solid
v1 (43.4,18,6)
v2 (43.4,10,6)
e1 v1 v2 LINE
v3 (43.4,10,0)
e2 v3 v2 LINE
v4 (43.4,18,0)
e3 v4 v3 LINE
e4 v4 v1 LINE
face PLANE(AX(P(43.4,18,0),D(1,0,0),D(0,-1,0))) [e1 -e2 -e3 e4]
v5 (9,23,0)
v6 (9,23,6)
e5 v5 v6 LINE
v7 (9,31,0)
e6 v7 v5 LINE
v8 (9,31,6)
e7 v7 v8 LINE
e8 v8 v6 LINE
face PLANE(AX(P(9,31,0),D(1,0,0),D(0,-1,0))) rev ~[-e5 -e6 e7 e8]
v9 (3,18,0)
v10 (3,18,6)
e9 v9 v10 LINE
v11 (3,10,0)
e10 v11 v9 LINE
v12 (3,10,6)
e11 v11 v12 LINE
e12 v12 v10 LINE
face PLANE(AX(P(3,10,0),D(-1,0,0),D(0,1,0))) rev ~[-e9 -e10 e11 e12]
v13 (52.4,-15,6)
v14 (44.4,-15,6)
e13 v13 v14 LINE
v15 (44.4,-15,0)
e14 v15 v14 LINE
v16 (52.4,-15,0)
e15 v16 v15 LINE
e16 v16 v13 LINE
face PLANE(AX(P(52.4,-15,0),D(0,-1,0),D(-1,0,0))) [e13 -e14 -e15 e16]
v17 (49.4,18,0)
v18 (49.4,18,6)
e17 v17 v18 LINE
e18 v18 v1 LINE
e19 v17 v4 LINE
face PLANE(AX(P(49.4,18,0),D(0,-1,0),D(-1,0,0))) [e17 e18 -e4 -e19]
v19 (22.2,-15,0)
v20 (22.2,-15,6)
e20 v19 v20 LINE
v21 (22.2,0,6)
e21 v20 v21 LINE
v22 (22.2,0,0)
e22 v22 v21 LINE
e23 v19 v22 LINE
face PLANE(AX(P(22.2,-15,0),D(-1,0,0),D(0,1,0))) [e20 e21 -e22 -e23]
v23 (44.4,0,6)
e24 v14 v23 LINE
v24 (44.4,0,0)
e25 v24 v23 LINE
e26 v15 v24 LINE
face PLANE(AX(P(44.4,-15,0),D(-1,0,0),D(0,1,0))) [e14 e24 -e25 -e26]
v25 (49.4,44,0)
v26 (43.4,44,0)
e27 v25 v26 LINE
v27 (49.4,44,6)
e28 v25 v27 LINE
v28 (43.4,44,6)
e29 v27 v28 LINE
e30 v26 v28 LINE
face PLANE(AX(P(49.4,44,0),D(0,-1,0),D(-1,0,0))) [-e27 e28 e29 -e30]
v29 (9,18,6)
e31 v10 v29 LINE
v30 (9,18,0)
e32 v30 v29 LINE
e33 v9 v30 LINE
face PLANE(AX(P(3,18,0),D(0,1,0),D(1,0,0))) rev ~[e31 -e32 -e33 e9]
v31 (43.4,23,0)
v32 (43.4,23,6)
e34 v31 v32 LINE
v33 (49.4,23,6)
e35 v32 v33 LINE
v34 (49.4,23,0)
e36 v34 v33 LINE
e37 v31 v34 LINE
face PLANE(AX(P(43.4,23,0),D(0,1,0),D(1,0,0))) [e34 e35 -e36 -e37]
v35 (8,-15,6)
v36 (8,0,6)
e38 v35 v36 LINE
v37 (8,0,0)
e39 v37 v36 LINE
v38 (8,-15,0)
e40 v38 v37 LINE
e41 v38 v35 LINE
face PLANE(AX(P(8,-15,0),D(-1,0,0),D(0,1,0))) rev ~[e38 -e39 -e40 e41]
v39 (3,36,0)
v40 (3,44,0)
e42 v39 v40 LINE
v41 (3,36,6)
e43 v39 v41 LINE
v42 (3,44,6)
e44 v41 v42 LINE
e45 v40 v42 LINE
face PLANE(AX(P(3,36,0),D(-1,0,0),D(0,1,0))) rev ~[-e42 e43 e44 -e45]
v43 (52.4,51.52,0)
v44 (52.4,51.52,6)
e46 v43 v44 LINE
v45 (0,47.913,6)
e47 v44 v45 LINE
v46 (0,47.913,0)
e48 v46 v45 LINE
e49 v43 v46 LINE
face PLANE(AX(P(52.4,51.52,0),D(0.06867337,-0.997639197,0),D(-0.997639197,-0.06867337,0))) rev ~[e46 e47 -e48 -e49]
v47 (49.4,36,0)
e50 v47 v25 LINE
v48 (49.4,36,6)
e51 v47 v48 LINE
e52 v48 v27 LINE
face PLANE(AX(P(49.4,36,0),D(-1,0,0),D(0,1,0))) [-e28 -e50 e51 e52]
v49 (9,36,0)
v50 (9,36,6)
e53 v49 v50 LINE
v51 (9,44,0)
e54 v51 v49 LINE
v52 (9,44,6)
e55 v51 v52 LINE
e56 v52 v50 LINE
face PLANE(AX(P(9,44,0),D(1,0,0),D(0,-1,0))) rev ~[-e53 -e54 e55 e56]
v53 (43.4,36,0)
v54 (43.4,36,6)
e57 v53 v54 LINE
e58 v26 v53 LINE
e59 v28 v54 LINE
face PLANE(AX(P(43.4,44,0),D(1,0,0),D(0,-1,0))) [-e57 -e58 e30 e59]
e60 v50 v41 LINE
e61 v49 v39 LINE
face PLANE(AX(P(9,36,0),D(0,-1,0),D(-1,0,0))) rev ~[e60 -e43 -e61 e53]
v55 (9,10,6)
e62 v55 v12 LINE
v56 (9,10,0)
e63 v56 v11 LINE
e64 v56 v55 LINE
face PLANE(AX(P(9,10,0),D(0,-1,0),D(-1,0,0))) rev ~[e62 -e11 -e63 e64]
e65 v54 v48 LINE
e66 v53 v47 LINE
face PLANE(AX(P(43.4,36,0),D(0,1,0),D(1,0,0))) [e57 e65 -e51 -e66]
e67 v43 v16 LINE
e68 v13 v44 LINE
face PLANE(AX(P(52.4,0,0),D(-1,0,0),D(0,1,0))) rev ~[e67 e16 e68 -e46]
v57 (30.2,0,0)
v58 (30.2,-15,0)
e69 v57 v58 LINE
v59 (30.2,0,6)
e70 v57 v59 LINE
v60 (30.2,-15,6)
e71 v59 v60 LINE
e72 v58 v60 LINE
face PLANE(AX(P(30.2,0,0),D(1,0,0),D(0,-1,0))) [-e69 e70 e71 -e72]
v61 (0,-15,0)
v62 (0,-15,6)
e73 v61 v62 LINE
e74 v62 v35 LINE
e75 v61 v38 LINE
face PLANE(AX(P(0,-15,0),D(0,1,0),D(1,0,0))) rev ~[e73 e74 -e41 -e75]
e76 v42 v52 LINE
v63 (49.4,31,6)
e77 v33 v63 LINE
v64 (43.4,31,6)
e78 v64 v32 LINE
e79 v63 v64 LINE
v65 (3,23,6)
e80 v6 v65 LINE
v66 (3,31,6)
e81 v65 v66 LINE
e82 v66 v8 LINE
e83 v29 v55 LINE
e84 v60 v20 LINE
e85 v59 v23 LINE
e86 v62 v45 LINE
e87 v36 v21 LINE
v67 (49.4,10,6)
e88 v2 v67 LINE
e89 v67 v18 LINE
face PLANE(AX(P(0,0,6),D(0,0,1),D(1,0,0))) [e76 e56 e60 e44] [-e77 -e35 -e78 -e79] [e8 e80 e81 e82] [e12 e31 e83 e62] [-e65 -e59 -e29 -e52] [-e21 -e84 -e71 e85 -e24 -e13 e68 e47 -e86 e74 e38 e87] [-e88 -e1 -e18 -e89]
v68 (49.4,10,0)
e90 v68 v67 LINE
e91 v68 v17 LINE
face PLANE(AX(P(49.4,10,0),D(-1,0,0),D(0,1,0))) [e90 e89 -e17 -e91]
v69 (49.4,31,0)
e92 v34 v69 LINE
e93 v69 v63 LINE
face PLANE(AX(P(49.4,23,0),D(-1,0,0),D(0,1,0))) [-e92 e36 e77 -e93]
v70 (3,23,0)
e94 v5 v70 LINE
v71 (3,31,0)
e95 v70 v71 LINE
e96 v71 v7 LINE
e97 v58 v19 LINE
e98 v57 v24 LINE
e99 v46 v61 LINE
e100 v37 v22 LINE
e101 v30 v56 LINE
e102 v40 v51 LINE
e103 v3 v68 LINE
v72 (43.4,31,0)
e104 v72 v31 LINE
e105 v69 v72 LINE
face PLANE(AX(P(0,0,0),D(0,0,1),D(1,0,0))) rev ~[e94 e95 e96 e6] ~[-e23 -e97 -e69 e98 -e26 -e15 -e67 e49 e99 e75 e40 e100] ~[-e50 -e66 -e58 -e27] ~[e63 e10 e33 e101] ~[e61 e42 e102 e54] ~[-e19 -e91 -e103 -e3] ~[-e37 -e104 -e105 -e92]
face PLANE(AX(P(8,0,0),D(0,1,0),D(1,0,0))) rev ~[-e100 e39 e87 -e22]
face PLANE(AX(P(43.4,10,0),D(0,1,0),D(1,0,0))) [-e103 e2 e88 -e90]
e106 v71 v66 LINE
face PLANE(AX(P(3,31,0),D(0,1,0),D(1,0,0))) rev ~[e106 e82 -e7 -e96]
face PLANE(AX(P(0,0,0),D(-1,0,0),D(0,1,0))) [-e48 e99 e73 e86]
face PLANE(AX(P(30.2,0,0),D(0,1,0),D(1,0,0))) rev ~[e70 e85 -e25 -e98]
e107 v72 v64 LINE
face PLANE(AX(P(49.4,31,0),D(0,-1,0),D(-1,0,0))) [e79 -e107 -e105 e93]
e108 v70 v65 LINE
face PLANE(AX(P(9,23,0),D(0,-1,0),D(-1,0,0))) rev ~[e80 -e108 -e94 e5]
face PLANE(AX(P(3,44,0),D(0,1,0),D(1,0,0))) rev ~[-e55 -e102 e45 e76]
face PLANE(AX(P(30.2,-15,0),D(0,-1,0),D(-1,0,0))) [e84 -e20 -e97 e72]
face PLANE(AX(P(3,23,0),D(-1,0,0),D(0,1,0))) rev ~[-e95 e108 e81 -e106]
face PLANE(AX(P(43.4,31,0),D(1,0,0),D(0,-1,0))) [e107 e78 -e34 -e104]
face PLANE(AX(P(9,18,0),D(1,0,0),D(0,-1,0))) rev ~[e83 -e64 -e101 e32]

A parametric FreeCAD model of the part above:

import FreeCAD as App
import Part
import Sketcher
from FreeCAD import Vector
Q = App.Units.Quantity

doc = App.newDocument("Part")
body = doc.addObject("PartDesign::Body", "Body")

# Sketch on XY plane
sketch1 = body.newObject("Sketcher::SketchObject", "Sketch")
sketch1.AttachmentSupport = (doc.getObject("XY_Plane"), [""])
sketch1.MapMode = "FlatFace"
sketch1.addGeometry([
    Part.LineSegment(Vector(0, 48, 0), Vector(0, 0, 0)),  # 0
    Part.LineSegment(Vector(0, 0, 0), Vector(52, 0, 0)),  # 1
    Part.LineSegment(Vector(52, 0, 0), Vector(52, 52, 0)),  # 2
    Part.LineSegment(Vector(52, 52, 0), Vector(0, 48, 0)),  # 3
    Part.LineSegment(Vector(3, 10, 0), Vector(3, 18, 0)),  # 4
    Part.LineSegment(Vector(3, 18, 0), Vector(9, 18, 0)),  # 5
    Part.LineSegment(Vector(9, 18, 0), Vector(9, 10, 0)),  # 6
    Part.LineSegment(Vector(9, 10, 0), Vector(3, 10, 0)),  # 7
    Part.LineSegment(Vector(43, 18, 0), Vector(49, 18, 0)),  # 8
    Part.LineSegment(Vector(49, 18, 0), Vector(49, 10, 0)),  # 9
    Part.LineSegment(Vector(49, 10, 0), Vector(43, 10, 0)),  # 10
    Part.LineSegment(Vector(43, 10, 0), Vector(43, 18, 0)),  # 11
    Part.LineSegment(Vector(3, 23, 0), Vector(3, 31, 0)),  # 12
    Part.LineSegment(Vector(3, 31, 0), Vector(9, 31, 0)),  # 13
    Part.LineSegment(Vector(9, 31, 0), Vector(9, 23, 0)),  # 14
    Part.LineSegment(Vector(9, 23, 0), Vector(3, 23, 0)),  # 15
    Part.LineSegment(Vector(3, 36, 0), Vector(3, 44, 0)),  # 16
    Part.LineSegment(Vector(3, 44, 0), Vector(9, 44, 0)),  # 17
    Part.LineSegment(Vector(9, 44, 0), Vector(9, 36, 0)),  # 18
    Part.LineSegment(Vector(9, 36, 0), Vector(3, 36, 0)),  # 19
    Part.LineSegment(Vector(43, 31, 0), Vector(49, 31, 0)),  # 20
    Part.LineSegment(Vector(49, 31, 0), Vector(49, 23, 0)),  # 21
    Part.LineSegment(Vector(49, 23, 0), Vector(43, 23, 0)),  # 22
    Part.LineSegment(Vector(43, 23, 0), Vector(43, 31, 0)),  # 23
    Part.LineSegment(Vector(43, 44, 0), Vector(49, 44, 0)),  # 24
    Part.LineSegment(Vector(49, 44, 0), Vector(49, 36, 0)),  # 25
    Part.LineSegment(Vector(49, 36, 0), Vector(43, 36, 0)),  # 26
    Part.LineSegment(Vector(43, 36, 0), Vector(43, 44, 0)),  # 27
], False)
sketch1.addConstraint([
    Sketcher.Constraint("Coincident", 0, 2, 1, 1),
    Sketcher.Constraint("Coincident", 1, 2, 2, 1),
    Sketcher.Constraint("Coincident", 2, 2, 3, 1),
    Sketcher.Constraint("Coincident", 3, 2, 0, 1),
    Sketcher.Constraint("Coincident", 4, 2, 5, 1),
    Sketcher.Constraint("Coincident", 5, 2, 6, 1),
    Sketcher.Constraint("Coincident", 6, 2, 7, 1),
    Sketcher.Constraint("Coincident", 7, 2, 4, 1),
    Sketcher.Constraint("Coincident", 8, 2, 9, 1),
    Sketcher.Constraint("Coincident", 9, 2, 10, 1),
    Sketcher.Constraint("Coincident", 10, 2, 11, 1),
    Sketcher.Constraint("Coincident", 11, 2, 8, 1),
    Sketcher.Constraint("Coincident", 12, 2, 13, 1),
    Sketcher.Constraint("Coincident", 13, 2, 14, 1),
    Sketcher.Constraint("Coincident", 14, 2, 15, 1),
    Sketcher.Constraint("Coincident", 15, 2, 12, 1),
    Sketcher.Constraint("Coincident", 16, 2, 17, 1),
    Sketcher.Constraint("Coincident", 17, 2, 18, 1),
    Sketcher.Constraint("Coincident", 18, 2, 19, 1),
    Sketcher.Constraint("Coincident", 19, 2, 16, 1),
    Sketcher.Constraint("Coincident", 20, 2, 21, 1),
    Sketcher.Constraint("Coincident", 21, 2, 22, 1),
    Sketcher.Constraint("Coincident", 22, 2, 23, 1),
    Sketcher.Constraint("Coincident", 23, 2, 20, 1),
    Sketcher.Constraint("Coincident", 24, 2, 25, 1),
    Sketcher.Constraint("Coincident", 25, 2, 26, 1),
    Sketcher.Constraint("Coincident", 26, 2, 27, 1),
    Sketcher.Constraint("Coincident", 27, 2, 24, 1),
    Sketcher.Constraint("Vertical", 0),
    Sketcher.Constraint("Horizontal", 1),
    Sketcher.Constraint("Vertical", 2),
    Sketcher.Constraint("Vertical", 4),
    Sketcher.Constraint("Horizontal", 5),
    Sketcher.Constraint("Vertical", 6),
    Sketcher.Constraint("Horizontal", 7),
    Sketcher.Constraint("Horizontal", 8),
    Sketcher.Constraint("Vertical", 9),
    Sketcher.Constraint("Horizontal", 10),
    Sketcher.Constraint("Vertical", 11),
    Sketcher.Constraint("Vertical", 12),
    Sketcher.Constraint("Horizontal", 13),
    Sketcher.Constraint("Vertical", 14),
    Sketcher.Constraint("Horizontal", 15),
    Sketcher.Constraint("Vertical", 16),
    Sketcher.Constraint("Horizontal", 17),
    Sketcher.Constraint("Vertical", 18),
    Sketcher.Constraint("Horizontal", 19),
    Sketcher.Constraint("Horizontal", 20),
    Sketcher.Constraint("Vertical", 21),
    Sketcher.Constraint("Horizontal", 22),
    Sketcher.Constraint("Vertical", 23),
    Sketcher.Constraint("Horizontal", 24),
    Sketcher.Constraint("Vertical", 25),
    Sketcher.Constraint("Horizontal", 26),
    Sketcher.Constraint("Vertical", 27),
    Sketcher.Constraint("Coincident", 0, 2, -1, 1),
    Sketcher.Constraint("Horizontal", 5, 2, 8, 2),
    Sketcher.Constraint("Horizontal", 7, 2, 9, 2),
    Sketcher.Constraint("Horizontal", 13, 2, 20, 2),
    Sketcher.Constraint("Horizontal", 15, 2, 21, 2),
    Sketcher.Constraint("Horizontal", 17, 2, 24, 2),
    Sketcher.Constraint("Horizontal", 19, 2, 25, 2),
    Sketcher.Constraint("Vertical", 7, 2, 12, 2),
    Sketcher.Constraint("Vertical", 6, 2, 13, 2),
    Sketcher.Constraint("Vertical", 15, 2, 16, 2),
    Sketcher.Constraint("Vertical", 14, 2, 17, 2),
    Sketcher.Constraint("Vertical", 9, 2, 20, 2),
    Sketcher.Constraint("Vertical", 11, 2, 22, 2),
    Sketcher.Constraint("Vertical", 21, 2, 24, 2),
    Sketcher.Constraint("Vertical", 23, 2, 26, 2),
    Sketcher.Constraint("Equal", 7, 8),
    Sketcher.Constraint("Equal", 11, 12),
    Sketcher.Constraint("Equal", 14, 16),
    Sketcher.Constraint("DistanceX", 5, 1, 5, 2, Q("6 mm")),
    Sketcher.Constraint("DistanceY", 4, 1, 4, 2, Q("8 mm")),
    Sketcher.Constraint("DistanceX", 1, 1, 1, 2, Q("52.4 mm")),
    Sketcher.Constraint("DistanceX", -1, 1, 4, 2, Q("3 mm")),
    Sketcher.Constraint("DistanceY", -1, 1, 6, 2, Q("10 mm")),
    Sketcher.Constraint("DistanceX", 8, 2, 1, 2, Q("3 mm")),
    Sketcher.Constraint("DistanceY", 5, 2, 14, 2, Q("5 mm")),
    Sketcher.Constraint("DistanceY", 13, 2, 18, 2, Q("5 mm")),
    Sketcher.Constraint("DistanceY", 2, 1, 2, 2, Q("51.52 mm")),
    Sketcher.Constraint("DistanceY", 0, 2, 0, 1, Q("47.913 mm")),
])
pad1 = body.newObject("PartDesign::Pad", "Pad")
pad1.Profile = sketch1
pad1.Length = 6

# Sketch on XY plane
sketch2 = body.newObject("Sketcher::SketchObject", "Sketch001")
sketch2.AttachmentSupport = (doc.getObject("XY_Plane"), [""])
sketch2.MapMode = "FlatFace"
sketch2.addGeometry([
    Part.LineSegment(Vector(8, 0, 0), Vector(0, 0, 0)),  # 0
    Part.LineSegment(Vector(0, 0, 0), Vector(0, -15, 0)),  # 1
    Part.LineSegment(Vector(0, -15, 0), Vector(8, -15, 0)),  # 2
    Part.LineSegment(Vector(8, -15, 0), Vector(8, 0, 0)),  # 3
    Part.LineSegment(Vector(30, 0, 0), Vector(22, 0, 0)),  # 4
    Part.LineSegment(Vector(22, 0, 0), Vector(22, -15, 0)),  # 5
    Part.LineSegment(Vector(22, -15, 0), Vector(30, -15, 0)),  # 6
    Part.LineSegment(Vector(30, -15, 0), Vector(30, 0, 0)),  # 7
    Part.LineSegment(Vector(52, -15, 0), Vector(52, 0, 0)),  # 8
    Part.LineSegment(Vector(52, 0, 0), Vector(44, 0, 0)),  # 9
    Part.LineSegment(Vector(44, 0, 0), Vector(44, -15, 0)),  # 10
    Part.LineSegment(Vector(44, -15, 0), Vector(52, -15, 0)),  # 11
], False)
sketch2.addConstraint([
    Sketcher.Constraint("Coincident", 0, 2, 1, 1),
    Sketcher.Constraint("Coincident", 1, 2, 2, 1),
    Sketcher.Constraint("Coincident", 2, 2, 3, 1),
    Sketcher.Constraint("Coincident", 3, 2, 0, 1),
    Sketcher.Constraint("Coincident", 4, 2, 5, 1),
    Sketcher.Constraint("Coincident", 5, 2, 6, 1),
    Sketcher.Constraint("Coincident", 6, 2, 7, 1),
    Sketcher.Constraint("Coincident", 7, 2, 4, 1),
    Sketcher.Constraint("Coincident", 8, 2, 9, 1),
    Sketcher.Constraint("Coincident", 9, 2, 10, 1),
    Sketcher.Constraint("Coincident", 10, 2, 11, 1),
    Sketcher.Constraint("Coincident", 11, 2, 8, 1),
    Sketcher.Constraint("Horizontal", 0),
    Sketcher.Constraint("Vertical", 1),
    Sketcher.Constraint("Horizontal", 2),
    Sketcher.Constraint("Vertical", 3),
    Sketcher.Constraint("Horizontal", 4),
    Sketcher.Constraint("Vertical", 5),
    Sketcher.Constraint("Horizontal", 6),
    Sketcher.Constraint("Vertical", 7),
    Sketcher.Constraint("Vertical", 8),
    Sketcher.Constraint("Horizontal", 9),
    Sketcher.Constraint("Vertical", 10),
    Sketcher.Constraint("Horizontal", 11),
    Sketcher.Constraint("Coincident", 0, 2, -1, 1),
    Sketcher.Constraint("PointOnObject", 4, 2, -1),
    Sketcher.Constraint("PointOnObject", 8, 2, -1),
    Sketcher.Constraint("Horizontal", 2, 2, 5, 2),
    Sketcher.Constraint("Horizontal", 6, 2, 10, 2),
    Sketcher.Constraint("Equal", 2, 4),
    Sketcher.Constraint("Equal", 6, 9),
    Sketcher.Constraint("DistanceX", 0, 2, 0, 1, Q("8 mm")),
    Sketcher.Constraint("DistanceY", 1, 2, 1, 1, Q("15 mm")),
    Sketcher.Constraint("DistanceX", -1, 1, 8, 2, Q("52.4 mm")),
    Sketcher.Constraint("DistanceX", 3, 2, 4, 2, Q("14.2 mm")),
])
pad2 = body.newObject("PartDesign::Pad", "Pad001")
pad2.Profile = sketch2
pad2.Length = 6

doc.recompute()
